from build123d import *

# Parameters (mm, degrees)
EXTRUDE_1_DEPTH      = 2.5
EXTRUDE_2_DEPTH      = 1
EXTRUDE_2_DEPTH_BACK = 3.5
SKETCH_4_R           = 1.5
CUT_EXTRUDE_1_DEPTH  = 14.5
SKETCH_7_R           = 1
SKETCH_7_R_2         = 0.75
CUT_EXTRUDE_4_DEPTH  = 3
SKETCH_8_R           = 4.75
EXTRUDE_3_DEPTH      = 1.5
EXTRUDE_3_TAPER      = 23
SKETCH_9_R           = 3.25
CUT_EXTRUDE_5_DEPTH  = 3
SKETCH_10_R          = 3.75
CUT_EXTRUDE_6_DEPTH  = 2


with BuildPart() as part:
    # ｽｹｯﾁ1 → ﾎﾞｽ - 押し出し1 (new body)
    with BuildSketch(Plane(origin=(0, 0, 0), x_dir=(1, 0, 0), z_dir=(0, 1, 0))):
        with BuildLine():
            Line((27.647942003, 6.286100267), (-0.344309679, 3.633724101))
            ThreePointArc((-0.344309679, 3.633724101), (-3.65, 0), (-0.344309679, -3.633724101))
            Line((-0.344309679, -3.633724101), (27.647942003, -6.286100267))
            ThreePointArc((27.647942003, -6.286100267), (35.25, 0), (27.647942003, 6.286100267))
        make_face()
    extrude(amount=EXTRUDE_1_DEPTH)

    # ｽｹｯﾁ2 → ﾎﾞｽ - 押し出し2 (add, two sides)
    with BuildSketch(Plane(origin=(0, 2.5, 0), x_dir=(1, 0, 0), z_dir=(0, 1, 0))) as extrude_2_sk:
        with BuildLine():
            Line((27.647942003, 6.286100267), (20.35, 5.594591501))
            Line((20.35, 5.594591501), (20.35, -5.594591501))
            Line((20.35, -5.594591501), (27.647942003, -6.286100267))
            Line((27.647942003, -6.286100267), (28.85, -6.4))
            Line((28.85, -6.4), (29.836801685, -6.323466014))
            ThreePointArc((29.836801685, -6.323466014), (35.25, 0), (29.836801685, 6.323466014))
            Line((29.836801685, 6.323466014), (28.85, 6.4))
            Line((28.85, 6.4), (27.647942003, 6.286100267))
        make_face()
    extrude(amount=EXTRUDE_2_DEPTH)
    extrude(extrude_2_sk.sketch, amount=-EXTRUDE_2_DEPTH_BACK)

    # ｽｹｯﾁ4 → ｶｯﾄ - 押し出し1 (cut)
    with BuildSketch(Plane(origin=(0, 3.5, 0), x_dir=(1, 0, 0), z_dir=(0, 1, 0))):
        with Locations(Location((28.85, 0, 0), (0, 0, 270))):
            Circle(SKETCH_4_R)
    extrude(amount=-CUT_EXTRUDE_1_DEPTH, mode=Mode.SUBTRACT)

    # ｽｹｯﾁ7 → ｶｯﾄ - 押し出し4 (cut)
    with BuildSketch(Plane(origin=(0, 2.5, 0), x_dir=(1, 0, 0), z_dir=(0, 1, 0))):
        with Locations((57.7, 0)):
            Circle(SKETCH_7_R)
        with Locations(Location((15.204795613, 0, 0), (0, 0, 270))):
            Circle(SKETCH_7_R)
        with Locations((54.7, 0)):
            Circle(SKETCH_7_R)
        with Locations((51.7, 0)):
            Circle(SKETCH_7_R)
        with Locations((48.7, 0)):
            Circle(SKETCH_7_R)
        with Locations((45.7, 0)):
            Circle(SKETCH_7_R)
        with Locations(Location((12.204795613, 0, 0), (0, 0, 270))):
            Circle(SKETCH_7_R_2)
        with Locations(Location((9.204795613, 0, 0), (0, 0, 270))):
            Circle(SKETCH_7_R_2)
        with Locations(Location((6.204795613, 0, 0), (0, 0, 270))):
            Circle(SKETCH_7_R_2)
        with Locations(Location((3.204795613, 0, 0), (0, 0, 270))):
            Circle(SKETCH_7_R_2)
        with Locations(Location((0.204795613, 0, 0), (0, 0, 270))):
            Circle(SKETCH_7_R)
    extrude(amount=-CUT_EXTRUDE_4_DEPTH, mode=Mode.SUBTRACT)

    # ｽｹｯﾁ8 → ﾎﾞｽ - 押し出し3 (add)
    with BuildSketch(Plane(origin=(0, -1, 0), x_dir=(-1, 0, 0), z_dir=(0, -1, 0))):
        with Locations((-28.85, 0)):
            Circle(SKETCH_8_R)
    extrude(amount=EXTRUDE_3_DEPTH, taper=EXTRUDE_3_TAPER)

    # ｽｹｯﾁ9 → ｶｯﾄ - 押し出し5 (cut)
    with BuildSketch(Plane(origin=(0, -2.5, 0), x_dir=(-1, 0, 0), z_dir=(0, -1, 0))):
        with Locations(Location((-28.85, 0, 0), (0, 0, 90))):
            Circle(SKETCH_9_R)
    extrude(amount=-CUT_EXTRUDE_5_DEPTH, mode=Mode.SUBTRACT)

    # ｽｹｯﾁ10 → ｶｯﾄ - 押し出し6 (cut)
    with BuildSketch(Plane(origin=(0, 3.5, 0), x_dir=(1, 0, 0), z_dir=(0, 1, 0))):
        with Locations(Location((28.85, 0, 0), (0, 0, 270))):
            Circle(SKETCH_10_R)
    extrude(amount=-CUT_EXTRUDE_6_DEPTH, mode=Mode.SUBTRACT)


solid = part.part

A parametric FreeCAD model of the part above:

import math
import FreeCAD as App
import Part
import Sketcher
Q = App.Units.Quantity

doc = App.newDocument("Part")
body = doc.addObject("PartDesign::Body", "Body")

# Sketch on XZ plane
sketch1 = doc.addObject("Sketcher::SketchObject", "Sketch")
body.addObject(sketch1)
sketch1.AttachmentSupport = (doc.XZ_Plane, [""])
sketch1.MapMode = "FlatFace"
sketch1.addGeometry(Part.LineSegment(App.Vector(27.6, -6.3, 0), App.Vector(-0.3, -3.6, 0)), False)
sketch1.addGeometry(Part.ArcOfCircle(Part.Circle(App.Vector(0, 0, 0), App.Vector(0, 0, 1), 3.6), math.radians(95), math.radians(265)), False)
sketch1.addGeometry(Part.LineSegment(App.Vector(-0.3, 3.6, 0), App.Vector(27.6, 6.3, 0)), False)
sketch1.addGeometry(Part.ArcOfCircle(Part.Circle(App.Vector(28.9, 0, 0), App.Vector(0, 0, 1), 6.4), math.radians(-101), math.radians(101)), False)
sketch1.addConstraint(Sketcher.Constraint("Tangent", 0, 2, 1, 2))
sketch1.addConstraint(Sketcher.Constraint("Tangent", 1, 1, 2, 1))
sketch1.addConstraint(Sketcher.Constraint("Coincident", 2, 2, 3, 2))
sketch1.addConstraint(Sketcher.Constraint("Coincident", 3, 1, 0, 1))
sketch1.addConstraint(Sketcher.Constraint("Coincident", 1, 3, -1, 1))
sketch1.addConstraint(Sketcher.Constraint("Symmetric", 2, 2, 3, 1, -1))
sketch1.addConstraint(Sketcher.Constraint("Radius", 3, Q("6.4 mm")))
sketch1.addConstraint(Sketcher.Constraint("Radius", 1, Q("3.65 mm")))
sketch1.addConstraint(Sketcher.Constraint("DistanceX", -1, 1, 3, 3, Q("28.85 mm")))
sketch1.addConstraint(Sketcher.Constraint("DistanceY", -1, 1, 2, 2, Q("6.2861 mm")))
pad1 = doc.addObject("PartDesign::Pad", "Pad")
body.addObject(pad1)
pad1.Profile = sketch1
pad1.Length = 2.5
pad1.Reversed = True

# Sketch on XZ plane
sketch2 = doc.addObject("Sketcher::SketchObject", "Sketch001")
body.addObject(sketch2)
sketch2.AttachmentSupport = (doc.XZ_Plane, [""])
sketch2.MapMode = "FlatFace"
sketch2.AttachmentOffset = App.Placement(App.Vector(0, 0, -2.5), App.Rotation())
sketch2.addGeometry(Part.LineSegment(App.Vector(27.6, -6.3, 0), App.Vector(20.4, -5.6, 0)), False)
sketch2.addGeometry(Part.LineSegment(App.Vector(20.4, -5.6, 0), App.Vector(20.4, 5.6, 0)), False)
sketch2.addGeometry(Part.LineSegment(App.Vector(20.4, 5.6, 0), App.Vector(27.6, 6.3, 0)), False)
sketch2.addGeometry(Part.LineSegment(App.Vector(27.6, 6.3, 0), App.Vector(28.9, 6.4, 0)), False)
sketch2.addGeometry(Part.LineSegment(App.Vector(28.9, 6.4, 0), App.Vector(29.8, 6.3, 0)), False)
sketch2.addGeometry(Part.ArcOfCircle(Part.Circle(App.Vector(28.9, 0, 0), App.Vector(0, 0, 1), 6.4), math.radians(-81), math.radians(81)), False)
sketch2.addGeometry(Part.LineSegment(App.Vector(29.8, -6.3, 0), App.Vector(28.9, -6.4, 0)), False)
sketch2.addGeometry(Part.LineSegment(App.Vector(28.9, -6.4, 0), App.Vector(27.6, -6.3, 0)), False)
sketch2.addConstraint(Sketcher.Constraint("Coincident", 0, 2, 1, 1))
sketch2.addConstraint(Sketcher.Constraint("Coincident", 1, 2, 2, 1))
sketch2.addConstraint(Sketcher.Constraint("Coincident", 2, 2, 3, 1))
sketch2.addConstraint(Sketcher.Constraint("Coincident", 3, 2, 4, 1))
sketch2.addConstraint(Sketcher.Constraint("Coincident", 4, 2, 5, 2))
sketch2.addConstraint(Sketcher.Constraint("Coincident", 5, 1, 6, 1))
sketch2.addConstraint(Sketcher.Constraint("Coincident", 6, 2, 7, 1))
sketch2.addConstraint(Sketcher.Constraint("Coincident", 7, 2, 0, 1))
sketch2.addConstraint(Sketcher.Constraint("Vertical", 1))
sketch2.addConstraint(Sketcher.Constraint("Symmetric", 4, 2, 5, 1, -1))
sketch2.addConstraint(Sketcher.Constraint("Symmetric", 3, 2, 6, 2, -1))
sketch2.addConstraint(Sketcher.Constraint("Symmetric", 2, 2, 7, 2, -1))
sketch2.addConstraint(Sketcher.Constraint("Parallel", 2, 3))
sketch2.addConstraint(Sketcher.Constraint("Parallel", 0, 7))
sketch2.addConstraint(Sketcher.Constraint("Vertical", 5, 3, 3, 2))
sketch2.addConstraint(Sketcher.Constraint("Radius", 5, Q("6.4 mm")))
sketch2.addConstraint(Sketcher.Constraint("DistanceY", -1, 1, 3, 2, Q("6.4 mm")))
sketch2.addConstraint(Sketcher.Constraint("DistanceX", 0, 2, 5, 3, Q("8.5 mm")))
sketch2.addConstraint(Sketcher.Constraint("DistanceX", -1, 1, 5, 3, Q("28.85 mm")))
sketch2.addConstraint(Sketcher.Constraint("DistanceY", -1, 1, 2, 2, Q("6.2861 mm")))
sketch2.addConstraint(Sketcher.Constraint("DistanceX", -1, 1, 4, 2, Q("29.836802 mm")))
sketch2.addConstraint(Sketcher.Constraint("Distance", 0, Q("7.33063 mm")))
pad2 = doc.addObject("PartDesign::Pad", "Pad001")
body.addObject(pad2)
pad2.Profile = sketch2
pad2.Type = "TwoLengths"
pad2.Length = 1
pad2.Length2 = 3.5
pad2.Reversed = True

# Sketch on XZ plane
sketch3 = doc.addObject("Sketcher::SketchObject", "Sketch002")
body.addObject(sketch3)
sketch3.AttachmentSupport = (doc.XZ_Plane, [""])
sketch3.MapMode = "FlatFace"
sketch3.AttachmentOffset = App.Placement(App.Vector(0, 0, -3.5), App.Rotation())
sketch3.addGeometry(Part.Circle(App.Vector(28.9, 0, 0), App.Vector(0, 0, 1), 1.5), False)
sketch3.addConstraint(Sketcher.Constraint("PointOnObject", 0, 3, -1))
sketch3.addConstraint(Sketcher.Constraint("Diameter", 0, Q("3 mm")))
sketch3.addConstraint(Sketcher.Constraint("DistanceX", -1, 1, 0, 3, Q("28.85 mm")))
pocket1 = doc.addObject("PartDesign::Pocket", "Pocket")
body.addObject(pocket1)
pocket1.Profile = sketch3
pocket1.Length = 14.5
pocket1.Reversed = True

# Sketch on XZ plane
sketch4 = doc.addObject("Sketcher::SketchObject", "Sketch003")
body.addObject(sketch4)
sketch4.AttachmentSupport = (doc.XZ_Plane, [""])
sketch4.MapMode = "FlatFace"
sketch4.AttachmentOffset = App.Placement(App.Vector(0, 0, -2.5), App.Rotation())
sketch4.addGeometry(Part.Circle(App.Vector(57.7, 0, 0), App.Vector(0, 0, 1), 1), False)
sketch4.addGeometry(Part.Circle(App.Vector(15.2, 0, 0), App.Vector(0, 0, 1), 1), False)
sketch4.addGeometry(Part.Circle(App.Vector(54.7, 0, 0), App.Vector(0, 0, 1), 1), False)
sketch4.addGeometry(Part.Circle(App.Vector(51.7, 0, 0), App.Vector(0, 0, 1), 1), False)
sketch4.addGeometry(Part.Circle(App.Vector(48.7, 0, 0), App.Vector(0, 0, 1), 1), False)
sketch4.addGeometry(Part.Circle(App.Vector(45.7, 0, 0), App.Vector(0, 0, 1), 1), False)
sketch4.addGeometry(Part.Circle(App.Vector(12.2, 0, 0), App.Vector(0, 0, 1), 0.8), False)
sketch4.addGeometry(Part.Circle(App.Vector(9.2, 0, 0), App.Vector(0, 0, 1), 0.8), False)
sketch4.addGeometry(Part.Circle(App.Vector(6.2, 0, 0), App.Vector(0, 0, 1), 0.8), False)
sketch4.addGeometry(Part.Circle(App.Vector(3.2, 0, 0), App.Vector(0, 0, 1), 0.8), False)
sketch4.addGeometry(Part.Circle(App.Vector(0.2, 0, 0), App.Vector(0, 0, 1), 1), False)
sketch4.addConstraint(Sketcher.Constraint("Equal", 0, 1))
sketch4.addConstraint(Sketcher.Constraint("Equal", 1, 2))
sketch4.addConstraint(Sketcher.Constraint("Equal", 2, 3))
sketch4.addConstraint(Sketcher.Constraint("Equal", 3, 4))
sketch4.addConstraint(Sketcher.Constraint("Equal", 4, 5))
sketch4.addConstraint(Sketcher.Constraint("Equal", 6, 7))
sketch4.addConstraint(Sketcher.Constraint("Equal", 7, 8))
sketch4.addConstraint(Sketcher.Constraint("Equal", 8, 9))
sketch4.addConstraint(Sketcher.Constraint("Equal", 5, 10))
sketch4.addConstraint(Sketcher.Constraint("PointOnObject", 0, 3, -1))
sketch4.addConstraint(Sketcher.Constraint("PointOnObject", 1, 3, -1))
sketch4.addConstraint(Sketcher.Constraint("PointOnObject", 2, 3, -1))
sketch4.addConstraint(Sketcher.Constraint("PointOnObject", 3, 3, -1))
sketch4.addConstraint(Sketcher.Constraint("PointOnObject", 4, 3, -1))
sketch4.addConstraint(Sketcher.Constraint("PointOnObject", 5, 3, -1))
sketch4.addConstraint(Sketcher.Constraint("PointOnObject", 6, 3, -1))
sketch4.addConstraint(Sketcher.Constraint("PointOnObject", 7, 3, -1))
sketch4.addConstraint(Sketcher.Constraint("PointOnObject", 8, 3, -1))
sketch4.addConstraint(Sketcher.Constraint("PointOnObject", 9, 3, -1))
sketch4.addConstraint(Sketcher.Constraint("PointOnObject", 10, 3, -1))
sketch4.addConstraint(Sketcher.Constraint("Diameter", 0, Q("2 mm")))
sketch4.addConstraint(Sketcher.Constraint("Diameter", 6, Q("1.5 mm")))
sketch4.addConstraint(Sketcher.Constraint("DistanceX", 2, 3, 0, 3, Q("3 mm")))
sketch4.addConstraint(Sketcher.Constraint("DistanceX", 3, 3, 2, 3, Q("3 mm")))
sketch4.addConstraint(Sketcher.Constraint("DistanceX", 4, 3, 3, 3, Q("3 mm")))
sketch4.addConstraint(Sketcher.Constraint("DistanceX", 5, 3, 4, 3, Q("3 mm")))
sketch4.addConstraint(Sketcher.Constraint("DistanceX", 6, 3, 1, 3, Q("3 mm")))
sketch4.addConstraint(Sketcher.Constraint("DistanceX", 7, 3, 6, 3, Q("3 mm")))
sketch4.addConstraint(Sketcher.Constraint("DistanceX", 8, 3, 7, 3, Q("3 mm")))
sketch4.addConstraint(Sketcher.Constraint("DistanceX", 9, 3, 8, 3, Q("3 mm")))
sketch4.addConstraint(Sketcher.Constraint("DistanceX", 10, 3, 9, 3, Q("3 mm")))
sketch4.addConstraint(Sketcher.Constraint("DistanceX", -1, 1, 0, 3, Q("57.7 mm")))
sketch4.addConstraint(Sketcher.Constraint("DistanceX", -1, 1, 1, 3, Q("15.204796 mm")))
pocket2 = doc.addObject("PartDesign::Pocket", "Pocket001")
body.addObject(pocket2)
pocket2.Profile = sketch4
pocket2.Length = 3
pocket2.Reversed = True

# Sketch on XZ plane
sketch5 = doc.addObject("Sketcher::SketchObject", "Sketch004")
body.addObject(sketch5)
sketch5.AttachmentSupport = (doc.XZ_Plane, [""])
sketch5.MapMode = "FlatFace"
sketch5.AttachmentOffset = App.Placement(App.Vector(0, 0, 1), App.Rotation())
sketch5.addGeometry(Part.Circle(App.Vector(28.9, 0, 0), App.Vector(0, 0, 1), 4.8), False)
sketch5.addConstraint(Sketcher.Constraint("PointOnObject", 0, 3, -1))
sketch5.addConstraint(Sketcher.Constraint("Diameter", 0, Q("9.5 mm")))
sketch5.addConstraint(Sketcher.Constraint("DistanceX", -1, 1, 0, 3, Q("28.85 mm")))
pad3 = doc.addObject("PartDesign::Pad", "Pad002")
body.addObject(pad3)
pad3.Profile = sketch5
pad3.Length = 1.5
pad3.TaperAngle = -23

# Sketch on XZ plane
sketch6 = doc.addObject("Sketcher::SketchObject", "Sketch005")
body.addObject(sketch6)
sketch6.AttachmentSupport = (doc.XZ_Plane, [""])
sketch6.MapMode = "FlatFace"
sketch6.AttachmentOffset = App.Placement(App.Vector(0, 0, 2.5), App.Rotation())
sketch6.addGeometry(Part.Circle(App.Vector(28.9, 0, 0), App.Vector(0, 0, 1), 3.2), False)
sketch6.addConstraint(Sketcher.Constraint("PointOnObject", 0, 3, -1))
sketch6.addConstraint(Sketcher.Constraint("Diameter", 0, Q("6.5 mm")))
sketch6.addConstraint(Sketcher.Constraint("DistanceX", -1, 1, 0, 3, Q("28.85 mm")))
pocket3 = doc.addObject("PartDesign::Pocket", "Pocket002")
body.addObject(pocket3)
pocket3.Profile = sketch6
pocket3.Length = 3

# Sketch on XZ plane
sketch7 = doc.addObject("Sketcher::SketchObject", "Sketch006")
body.addObject(sketch7)
sketch7.AttachmentSupport = (doc.XZ_Plane, [""])
sketch7.MapMode = "FlatFace"
sketch7.AttachmentOffset = App.Placement(App.Vector(0, 0, -3.5), App.Rotation())
sketch7.addGeometry(Part.Circle(App.Vector(28.9, 0, 0), App.Vector(0, 0, 1), 3.8), False)
sketch7.addConstraint(Sketcher.Constraint("PointOnObject", 0, 3, -1))
sketch7.addConstraint(Sketcher.Constraint("Diameter", 0, Q("7.5 mm")))
sketch7.addConstraint(Sketcher.Constraint("DistanceX", -1, 1, 0, 3, Q("28.85 mm")))
pocket4 = doc.addObject("PartDesign::Pocket", "Pocket003")
body.addObject(pocket4)
pocket4.Profile = sketch7
pocket4.Length = 2
pocket4.Reversed = True

doc.recompute()
